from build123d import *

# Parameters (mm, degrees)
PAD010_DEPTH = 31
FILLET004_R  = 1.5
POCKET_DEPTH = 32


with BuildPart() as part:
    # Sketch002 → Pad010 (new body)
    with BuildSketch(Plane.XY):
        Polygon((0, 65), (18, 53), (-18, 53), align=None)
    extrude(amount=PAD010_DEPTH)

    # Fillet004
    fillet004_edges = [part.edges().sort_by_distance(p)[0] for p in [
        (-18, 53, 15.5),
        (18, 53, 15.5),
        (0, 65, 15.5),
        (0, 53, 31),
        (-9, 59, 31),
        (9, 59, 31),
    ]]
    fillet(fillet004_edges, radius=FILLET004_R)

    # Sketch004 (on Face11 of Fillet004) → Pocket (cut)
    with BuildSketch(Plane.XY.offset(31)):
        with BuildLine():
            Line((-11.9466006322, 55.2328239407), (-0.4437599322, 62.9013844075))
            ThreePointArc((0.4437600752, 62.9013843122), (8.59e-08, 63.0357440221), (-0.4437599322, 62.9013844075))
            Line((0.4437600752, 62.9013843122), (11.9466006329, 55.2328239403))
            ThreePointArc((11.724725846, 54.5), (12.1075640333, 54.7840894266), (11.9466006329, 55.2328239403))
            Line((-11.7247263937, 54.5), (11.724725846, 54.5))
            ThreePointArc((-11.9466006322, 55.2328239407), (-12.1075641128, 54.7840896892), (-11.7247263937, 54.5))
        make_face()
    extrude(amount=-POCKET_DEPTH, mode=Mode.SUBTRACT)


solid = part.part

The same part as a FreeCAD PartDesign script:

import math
import FreeCAD as App
import Part
import Sketcher

V = App.Vector
Q = App.Units.Quantity


def edges_at(feature, points):
    """Names of the edges that pass closest to the given points."""
    edges = feature.Shape.Edges
    near = lambda p: min(range(len(edges)), key=lambda i: edges[i].distToShape(Part.Vertex(*p))[0])
    return sorted({f"Edge{near(p) + 1}" for p in points})

doc = App.newDocument("Part")
body = doc.addObject("PartDesign::Body", "Body")

sketch1 = body.newObject("Sketcher::SketchObject", "Sketch")
sketch1.AttachmentSupport = (doc.getObject("XY_Plane"), [""])
sketch1.MapMode = "FlatFace"
sketch1.addGeometry(Part.LineSegment(V(18, 53, 0), V(0, 65, 0)), False)
sketch1.addGeometry(Part.LineSegment(V(0, 65, 0), V(-18, 53, 0)), False)
sketch1.addGeometry(Part.LineSegment(V(-18, 53, 0), V(18, 53, 0)), False)
sketch1.addConstraint(Sketcher.Constraint("Coincident", 0, 2, 1, 1))
sketch1.addConstraint(Sketcher.Constraint("Coincident", 1, 2, 2, 1))
sketch1.addConstraint(Sketcher.Constraint("Coincident", 2, 2, 0, 1))
sketch1.addConstraint(Sketcher.Constraint("Horizontal", 2))
sketch1.addConstraint(Sketcher.Constraint("PointOnObject", 0, 2, -2))
sketch1.addConstraint(Sketcher.Constraint("Equal", 0, 1))
sketch1.addConstraint(Sketcher.Constraint("DistanceX", 2, 1, 2, 2, Q("36 mm")))
sketch1.addConstraint(Sketcher.Constraint("DistanceY", -1, 1, 0, 2, Q("65 mm")))
sketch1.addConstraint(Sketcher.Constraint("DistanceY", -1, 1, 1, 2, Q("53 mm")))
pad1 = body.newObject("PartDesign::Pad", "Pad")
pad1.Profile = sketch1
pad1.Length = 31
doc.recompute()

fillet = body.newObject("PartDesign::Fillet", "Fillet")
fillet.Base = (pad1, edges_at(pad1, [
    (-18, 53, 15.5),
    (18, 53, 15.5),
    (0, 65, 15.5),
    (0, 53, 31),
    (-9, 59, 31),
    (9, 59, 31),
]))
fillet.Radius = 1.5

sketch2 = body.newObject("Sketcher::SketchObject", "Sketch001")
sketch2.AttachmentSupport = (doc.getObject("XY_Plane"), [""])
sketch2.MapMode = "FlatFace"
sketch2.AttachmentOffset = App.Placement(V(0, 0, 31), App.Rotation())
sketch2.addGeometry(Part.LineSegment(V(-0.44376, 62.901384, 0), V(-11.946601, 55.232824, 0)), False)
sketch2.addGeometry(Part.ArcOfCircle(Part.Circle(V(-11.724726, 54.9, 0), V(0, 0, 1), 0.4), math.radians(123.68908), math.radians(269.999985)), False)
sketch2.addGeometry(Part.LineSegment(V(-11.724726, 54.5, 0), V(11.724726, 54.5, 0)), False)
sketch2.addGeometry(Part.ArcOfCircle(Part.Circle(V(11.724726, 54.9, 0), V(0, 0, 1), 0.4), math.radians(-90.000063), math.radians(56.31092)), False)
sketch2.addGeometry(Part.LineSegment(V(11.946601, 55.232824, 0), V(0.44376, 62.901384, 0)), False)
sketch2.addGeometry(Part.ArcOfCircle(Part.Circle(V(0, 62.235744, 0), V(0, 0, 1), 0.8), math.radians(56.30994), math.radians(123.690048)), False)
sketch2.addConstraint(Sketcher.Constraint("Coincident", 0, 2, 1, 1))
sketch2.addConstraint(Sketcher.Constraint("Tangent", 1, 2, 2, 1))
sketch2.addConstraint(Sketcher.Constraint("Tangent", 2, 2, 3, 1))
sketch2.addConstraint(Sketcher.Constraint("Coincident", 3, 2, 4, 1))
sketch2.addConstraint(Sketcher.Constraint("Tangent", 4, 2, 5, 1))
sketch2.addConstraint(Sketcher.Constraint("Tangent", 5, 2, 0, 1))
sketch2.addConstraint(Sketcher.Constraint("Horizontal", 2))
sketch2.addConstraint(Sketcher.Constraint("Equal", 1, 3))
sketch2.addConstraint(Sketcher.Constraint("Symmetric", 0, 2, 3, 2, -2))
sketch2.addConstraint(Sketcher.Constraint("PointOnObject", 5, 3, -2))
sketch2.addConstraint(Sketcher.Constraint("Radius", 1, Q("0.4 mm")))
sketch2.addConstraint(Sketcher.Constraint("Radius", 5, Q("0.8 mm")))
sketch2.addConstraint(Sketcher.Constraint("DistanceY", -1, 1, 1, 3, Q("54.9 mm")))
sketch2.addConstraint(Sketcher.Constraint("DistanceX", 0, 2, -1, 1, Q("11.946601 mm")))
sketch2.addConstraint(Sketcher.Constraint("DistanceX", 2, 1, 2, 2, Q("23.449452 mm")))
sketch2.addConstraint(Sketcher.Constraint("DistanceX", -1, 1, 4, 2, Q("0.44376 mm")))
pocket1 = body.newObject("PartDesign::Pocket", "Pocket")
pocket1.Profile = sketch2
pocket1.Length = 32

doc.recompute()
